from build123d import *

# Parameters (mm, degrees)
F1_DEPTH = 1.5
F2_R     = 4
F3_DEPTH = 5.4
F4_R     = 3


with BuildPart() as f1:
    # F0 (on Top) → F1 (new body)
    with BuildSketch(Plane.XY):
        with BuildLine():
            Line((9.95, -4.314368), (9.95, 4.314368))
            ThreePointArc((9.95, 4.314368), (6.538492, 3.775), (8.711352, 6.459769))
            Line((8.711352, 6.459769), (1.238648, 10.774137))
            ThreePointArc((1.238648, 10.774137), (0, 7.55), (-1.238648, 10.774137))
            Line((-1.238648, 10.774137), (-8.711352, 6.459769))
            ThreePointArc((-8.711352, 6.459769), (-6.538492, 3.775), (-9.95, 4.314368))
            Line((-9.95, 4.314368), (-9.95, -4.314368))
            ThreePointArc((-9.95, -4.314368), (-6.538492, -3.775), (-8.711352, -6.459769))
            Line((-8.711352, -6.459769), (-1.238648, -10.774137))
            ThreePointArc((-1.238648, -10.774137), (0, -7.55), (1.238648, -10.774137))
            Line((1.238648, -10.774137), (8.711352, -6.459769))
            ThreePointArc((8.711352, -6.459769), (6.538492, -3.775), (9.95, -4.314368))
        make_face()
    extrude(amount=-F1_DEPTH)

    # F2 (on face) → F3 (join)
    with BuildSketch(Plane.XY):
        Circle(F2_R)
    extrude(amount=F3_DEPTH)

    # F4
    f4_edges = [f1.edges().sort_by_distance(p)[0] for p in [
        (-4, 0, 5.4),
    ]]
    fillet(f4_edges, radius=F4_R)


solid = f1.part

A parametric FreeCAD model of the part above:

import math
import FreeCAD as App
import Part
import Sketcher
Q = App.Units.Quantity


def edges_at(feature, points):
    """Names of the edges that pass closest to the given points."""
    edges = feature.Shape.Edges
    near = lambda p: min(range(len(edges)), key=lambda i: edges[i].distToShape(Part.Vertex(*p))[0])
    return sorted({f"Edge{near(p) + 1}" for p in points})

doc = App.newDocument("Part")
body = doc.addObject("PartDesign::Body", "Body")

sketch1 = body.newObject("Sketcher::SketchObject", "Sketch")
sketch1.AttachmentSupport = (doc.getObject("XY_Plane"), [""])
sketch1.MapMode = "FlatFace"
sketch1.addGeometry([
    Part.LineSegment(App.Vector(9.95, -4.314368, 0), App.Vector(9.95, 4.314368, 0)),
    Part.ArcOfCircle(Part.Circle(App.Vector(8.140639, 4.7, 0), App.Vector(0, 0, 1), 1.85), math.radians(72.031529), math.radians(347.968477)),
    Part.LineSegment(App.Vector(8.711352, 6.459769, 0), App.Vector(1.238648, 10.774137, 0)),
    Part.ArcOfCircle(Part.Circle(App.Vector(0, 9.4, 0), App.Vector(0, 0, 1), 1.85), math.radians(132.031524), math.radians(407.968476)),
    Part.LineSegment(App.Vector(-1.238648, 10.774137, 0), App.Vector(-8.711352, 6.459769, 0)),
    Part.ArcOfCircle(Part.Circle(App.Vector(-8.140639, 4.7, 0), App.Vector(0, 0, 1), 1.85), math.radians(-167.968477), math.radians(107.968471)),
    Part.LineSegment(App.Vector(-9.95, 4.314368, 0), App.Vector(-9.95, -4.314368, 0)),
    Part.ArcOfCircle(Part.Circle(App.Vector(-8.140639, -4.7, 0), App.Vector(0, 0, 1), 1.85), math.radians(-107.968471), math.radians(167.968477)),
    Part.LineSegment(App.Vector(-8.711352, -6.459769, 0), App.Vector(-1.238648, -10.774137, 0)),
    Part.ArcOfCircle(Part.Circle(App.Vector(0, -9.4, 0), App.Vector(0, 0, 1), 1.85), math.radians(-47.968476), math.radians(227.968476)),
    Part.LineSegment(App.Vector(1.238648, -10.774137, 0), App.Vector(8.711352, -6.459769, 0)),
    Part.ArcOfCircle(Part.Circle(App.Vector(8.140639, -4.7, 0), App.Vector(0, 0, 1), 1.85), math.radians(12.031523), math.radians(287.968471)),
], False)
sketch1.addConstraint([
    Sketcher.Constraint("Coincident", 0, 2, 1, 2),
    Sketcher.Constraint("Coincident", 1, 1, 2, 1),
    Sketcher.Constraint("Coincident", 2, 2, 3, 2),
    Sketcher.Constraint("Coincident", 3, 1, 4, 1),
    Sketcher.Constraint("Coincident", 4, 2, 5, 2),
    Sketcher.Constraint("Coincident", 5, 1, 6, 1),
    Sketcher.Constraint("Coincident", 6, 2, 7, 2),
    Sketcher.Constraint("Coincident", 7, 1, 8, 1),
    Sketcher.Constraint("Coincident", 8, 2, 9, 2),
    Sketcher.Constraint("Coincident", 9, 1, 10, 1),
    Sketcher.Constraint("Coincident", 10, 2, 11, 2),
    Sketcher.Constraint("Coincident", 11, 1, 0, 1),
    Sketcher.Constraint("Vertical", 0),
    Sketcher.Constraint("Vertical", 6),
    Sketcher.Constraint("Equal", 1, 3),
    Sketcher.Constraint("Equal", 3, 5),
    Sketcher.Constraint("Equal", 5, 7),
    Sketcher.Constraint("Equal", 7, 9),
    Sketcher.Constraint("Equal", 9, 11),
    Sketcher.Constraint("Symmetric", 1, 3, 7, 3, -1, 1),
    Sketcher.Constraint("Symmetric", 3, 3, 9, 3, -1, 1),
    Sketcher.Constraint("Symmetric", 5, 3, 11, 3, -1, 1),
    Sketcher.Constraint("Symmetric", 1, 3, 5, 3, -2),
    Sketcher.Constraint("Symmetric", 2, 2, 3, 1, -2),
    Sketcher.Constraint("Parallel", 2, 8),
    Sketcher.Constraint("Parallel", 4, 10),
    Sketcher.Constraint("Horizontal", 1, 1, 4, 2),
    Sketcher.Constraint("Horizontal", 0, 2, 5, 1),
    Sketcher.Constraint("Horizontal", 8, 2, 9, 1),
    Sketcher.Constraint("Vertical", 4, 2, 7, 1),
    Sketcher.Constraint("Angle", 2, Q("149.999998 deg")),
    Sketcher.Constraint("Radius", 1, 1.85),
    Sketcher.Constraint("DistanceY", -1, 1, 1, 3, 4.7),
    Sketcher.Constraint("DistanceY", -1, 1, 3, 3, 9.4),
    Sketcher.Constraint("DistanceX", -1, 1, 0, 2, 9.95),
    Sketcher.Constraint("DistanceX", 3, 1, 1, 1, 9.95),
    Sketcher.Constraint("DistanceY", 0, 2, 1, 1, 2.145401),
])
pad1 = body.newObject("PartDesign::Pad", "Pad")
pad1.Profile = sketch1
pad1.Length = 1.5
pad1.Reversed = True

sketch2 = body.newObject("Sketcher::SketchObject", "Sketch001")
sketch2.AttachmentSupport = (doc.getObject("XY_Plane"), [""])
sketch2.MapMode = "FlatFace"
sketch2.addGeometry(Part.Circle(App.Vector(0, 0, 0), App.Vector(0, 0, 1), 4), False)
sketch2.addConstraint([
    Sketcher.Constraint("Coincident", 0, 3, -1, 1),
    Sketcher.Constraint("Diameter", 0, 8.0),
])
pad2 = body.newObject("PartDesign::Pad", "Pad001")
pad2.Profile = sketch2
pad2.Length = 5.4
doc.recompute()

fillet = body.newObject("PartDesign::Fillet", "Fillet")
fillet.Base = (pad2, edges_at(pad2, [(-4, 0, 5.4)]))
fillet.Radius = 3

doc.recompute()
